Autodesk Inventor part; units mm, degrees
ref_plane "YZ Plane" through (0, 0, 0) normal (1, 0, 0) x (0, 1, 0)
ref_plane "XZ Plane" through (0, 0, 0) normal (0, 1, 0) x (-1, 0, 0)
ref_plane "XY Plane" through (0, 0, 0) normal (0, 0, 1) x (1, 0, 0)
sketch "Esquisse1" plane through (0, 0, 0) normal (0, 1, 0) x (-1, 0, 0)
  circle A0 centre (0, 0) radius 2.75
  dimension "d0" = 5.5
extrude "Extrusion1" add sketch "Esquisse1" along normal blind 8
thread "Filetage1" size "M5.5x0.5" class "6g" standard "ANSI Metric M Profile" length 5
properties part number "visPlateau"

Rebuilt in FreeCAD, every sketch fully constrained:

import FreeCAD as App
import Part
import Sketcher

V = App.Vector
Q = App.Units.Quantity

doc = App.newDocument("Part")
body = doc.addObject("PartDesign::Body", "Body")

# Sketch on XZ plane
sketch1 = doc.addObject("Sketcher::SketchObject", "Sketch")
body.addObject(sketch1)
sketch1.AttachmentSupport = (doc.XZ_Plane, [""])
sketch1.MapMode = "FlatFace"
sketch1.addGeometry(Part.Circle(V(0, 0, 0), V(0, 0, 1), 2.8), False)
sketch1.addConstraint(Sketcher.Constraint("Coincident", 0, 3, -1, 1))
sketch1.addConstraint(Sketcher.Constraint("Diameter", 0, Q("5.5 mm")))
pad1 = doc.addObject("PartDesign::Pad", "Pad")
body.addObject(pad1)
pad1.Profile = sketch1
pad1.Length = 8
pad1.Reversed = True

doc.recompute()
